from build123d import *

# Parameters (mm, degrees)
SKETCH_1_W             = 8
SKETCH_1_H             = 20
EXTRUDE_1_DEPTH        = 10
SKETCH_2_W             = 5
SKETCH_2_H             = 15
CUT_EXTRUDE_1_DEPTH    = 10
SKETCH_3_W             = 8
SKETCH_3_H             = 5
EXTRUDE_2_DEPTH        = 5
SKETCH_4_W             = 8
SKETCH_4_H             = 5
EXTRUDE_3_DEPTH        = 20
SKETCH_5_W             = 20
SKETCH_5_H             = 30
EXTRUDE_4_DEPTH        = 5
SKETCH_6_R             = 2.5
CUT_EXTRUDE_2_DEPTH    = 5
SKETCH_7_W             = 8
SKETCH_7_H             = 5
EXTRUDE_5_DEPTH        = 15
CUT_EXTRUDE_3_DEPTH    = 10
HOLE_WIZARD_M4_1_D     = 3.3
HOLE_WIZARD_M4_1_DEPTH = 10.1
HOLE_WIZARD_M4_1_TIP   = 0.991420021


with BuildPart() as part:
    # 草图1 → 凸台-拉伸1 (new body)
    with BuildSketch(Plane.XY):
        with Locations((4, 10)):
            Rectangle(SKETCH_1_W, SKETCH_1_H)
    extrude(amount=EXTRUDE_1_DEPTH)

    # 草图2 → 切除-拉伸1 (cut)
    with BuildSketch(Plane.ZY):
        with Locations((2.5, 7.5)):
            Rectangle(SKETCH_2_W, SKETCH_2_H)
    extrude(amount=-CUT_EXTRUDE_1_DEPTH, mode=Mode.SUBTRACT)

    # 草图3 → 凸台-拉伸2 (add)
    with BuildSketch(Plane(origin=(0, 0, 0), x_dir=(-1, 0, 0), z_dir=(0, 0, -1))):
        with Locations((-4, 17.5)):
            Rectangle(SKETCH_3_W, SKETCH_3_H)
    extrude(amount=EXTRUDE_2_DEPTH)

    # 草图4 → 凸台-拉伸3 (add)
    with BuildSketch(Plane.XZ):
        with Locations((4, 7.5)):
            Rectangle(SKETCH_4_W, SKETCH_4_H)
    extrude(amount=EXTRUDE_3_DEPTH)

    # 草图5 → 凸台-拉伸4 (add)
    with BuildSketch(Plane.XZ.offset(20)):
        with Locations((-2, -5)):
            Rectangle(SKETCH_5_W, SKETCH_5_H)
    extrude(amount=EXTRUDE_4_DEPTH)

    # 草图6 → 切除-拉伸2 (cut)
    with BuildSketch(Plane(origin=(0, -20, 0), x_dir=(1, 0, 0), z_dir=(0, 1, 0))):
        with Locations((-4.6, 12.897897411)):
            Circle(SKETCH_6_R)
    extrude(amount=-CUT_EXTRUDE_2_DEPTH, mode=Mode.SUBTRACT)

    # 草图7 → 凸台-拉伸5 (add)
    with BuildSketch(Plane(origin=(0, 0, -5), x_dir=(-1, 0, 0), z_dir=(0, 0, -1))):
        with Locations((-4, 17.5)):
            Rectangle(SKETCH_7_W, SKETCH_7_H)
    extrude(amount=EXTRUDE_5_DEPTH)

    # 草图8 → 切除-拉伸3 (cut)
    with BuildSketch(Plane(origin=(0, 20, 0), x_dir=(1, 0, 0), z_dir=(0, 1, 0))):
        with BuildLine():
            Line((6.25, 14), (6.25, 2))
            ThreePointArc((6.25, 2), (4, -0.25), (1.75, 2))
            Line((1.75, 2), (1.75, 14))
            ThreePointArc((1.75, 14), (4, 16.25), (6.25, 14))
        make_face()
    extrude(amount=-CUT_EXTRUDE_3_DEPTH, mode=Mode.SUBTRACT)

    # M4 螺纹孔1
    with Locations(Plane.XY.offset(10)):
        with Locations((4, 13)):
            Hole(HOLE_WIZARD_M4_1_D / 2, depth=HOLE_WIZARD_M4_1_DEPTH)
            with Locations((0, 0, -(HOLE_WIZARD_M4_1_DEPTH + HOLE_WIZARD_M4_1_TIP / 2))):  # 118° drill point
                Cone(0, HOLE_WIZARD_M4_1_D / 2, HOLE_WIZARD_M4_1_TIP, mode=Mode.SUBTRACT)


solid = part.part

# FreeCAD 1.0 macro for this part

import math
import FreeCAD as App
import Part
import Sketcher

V = App.Vector
Q = App.Units.Quantity


def add_polygon(sketch, points):
    """Adds a closed chain of lines whose ends are joined by coincident constraints."""
    first, n = sketch.GeometryCount, len(points)
    for a, b in zip(points, points[1:] + points[:1]):
        sketch.addGeometry(Part.LineSegment(App.Vector(*a, 0), App.Vector(*b, 0)), False)
    for i in range(n):
        sketch.addConstraint(Sketcher.Constraint("Coincident", first + i, 2, first + (i + 1) % n, 1))

doc = App.newDocument("Part")
params = doc.addObject("Spreadsheet::Sheet", "Params")
for row, (alias, value) in enumerate([
    ("sketch1_width", "8 mm"),
    ("sketch1_height", "20 mm"),
    ("pad1_length", "10 mm"),
    ("sketch2_width", "15 mm"),
    ("sketch2_height", "5 mm"),
    ("pocket1_length", "10 mm"),
    ("sketch3_width", "8 mm"),
    ("sketch3_height", "5 mm"),
    ("pad2_length", "5 mm"),
    ("sketch4_width", "8 mm"),
    ("sketch4_height", "5 mm"),
    ("pad3_length", "20 mm"),
    ("sketch5_width", "20 mm"),
    ("sketch5_height", "30 mm"),
    ("pad4_length", "5 mm"),
    ("sketch6_diameter", "5 mm"),
    ("pocket2_length", "5 mm"),
    ("sketch7_width", "8 mm"),
    ("sketch7_height", "5 mm"),
    ("pad5_length", "15 mm"),
    ("sketch8_height", "12 mm"),
    ("sketch8_radius", "2.25 mm"),
    ("pocket3_length", "10 mm"),
    ("sketch9_diameter", "3.3 mm"),
    ("hole_diameter", "3.3 mm"),
    ("hole_depth", "10.1 mm"),
], start=1):
    params.set(f"A{row}", alias)
    params.set(f"B{row}", "=" + value)
    params.setAlias(f"B{row}", alias)

body = doc.addObject("PartDesign::Body", "Body")

# Sketch on XY plane
sketch1 = doc.addObject("Sketcher::SketchObject", "Sketch")
body.addObject(sketch1)
sketch1.AttachmentSupport = (doc.XY_Plane, [""])
sketch1.MapMode = "FlatFace"
add_polygon(sketch1, [(0, 20), (0, 0), (8, 0), (8, 20)])  # lines 0-3
sketch1.addConstraint([
    Sketcher.Constraint("Vertical", 0),
    Sketcher.Constraint("Horizontal", 1),
    Sketcher.Constraint("Vertical", 2),
    Sketcher.Constraint("Horizontal", 3),
    Sketcher.Constraint("Coincident", 0, 2, -1, 1),
    Sketcher.Constraint("DistanceX", 1, 1, 1, 2, Q("8 mm")),
    Sketcher.Constraint("DistanceY", 0, 2, 0, 1, Q("20 mm")),
])
sketch1.setExpression("Constraints[9]", "Params.sketch1_width")
sketch1.setExpression("Constraints[10]", "Params.sketch1_height")
pad1 = doc.addObject("PartDesign::Pad", "Pad")
body.addObject(pad1)
pad1.Profile = sketch1
pad1.setExpression("Length", "Params.pad1_length")

# Sketch on YZ plane
sketch2 = doc.addObject("Sketcher::SketchObject", "Sketch001")
body.addObject(sketch2)
sketch2.AttachmentSupport = (doc.YZ_Plane, [""])
sketch2.MapMode = "FlatFace"
add_polygon(sketch2, [(15, 0), (0, 0), (0, 5), (15, 5)])  # lines 0-3
sketch2.addConstraint([
    Sketcher.Constraint("Horizontal", 0),
    Sketcher.Constraint("Vertical", 1),
    Sketcher.Constraint("Horizontal", 2),
    Sketcher.Constraint("Vertical", 3),
    Sketcher.Constraint("Coincident", 0, 2, -1, 1),
    Sketcher.Constraint("DistanceX", 0, 2, 0, 1, Q("15 mm")),
    Sketcher.Constraint("DistanceY", 1, 1, 1, 2, Q("5 mm")),
])
sketch2.setExpression("Constraints[9]", "Params.sketch2_width")
sketch2.setExpression("Constraints[10]", "Params.sketch2_height")
pocket1 = doc.addObject("PartDesign::Pocket", "Pocket")
body.addObject(pocket1)
pocket1.Profile = sketch2
pocket1.setExpression("Length", "Params.pocket1_length")
pocket1.Reversed = True

# Sketch on XY plane
sketch3 = doc.addObject("Sketcher::SketchObject", "Sketch002")
body.addObject(sketch3)
sketch3.AttachmentSupport = (doc.XY_Plane, [""])
sketch3.MapMode = "FlatFace"
add_polygon(sketch3, [(8, 20), (8, 15), (0, 15), (0, 20)])  # lines 0-3
sketch3.addConstraint([
    Sketcher.Constraint("Vertical", 0),
    Sketcher.Constraint("Horizontal", 1),
    Sketcher.Constraint("Vertical", 2),
    Sketcher.Constraint("Horizontal", 3),
    Sketcher.Constraint("PointOnObject", 1, 2, -2),
    Sketcher.Constraint("DistanceX", 1, 2, 1, 1, Q("8 mm")),
    Sketcher.Constraint("DistanceY", 0, 2, 0, 1, Q("5 mm")),
    Sketcher.Constraint("DistanceY", -1, 1, 0, 2, Q("15 mm")),
])
sketch3.setExpression("Constraints[9]", "Params.sketch3_width")
sketch3.setExpression("Constraints[10]", "Params.sketch3_height")
pad2 = doc.addObject("PartDesign::Pad", "Pad001")
body.addObject(pad2)
pad2.Profile = sketch3
pad2.setExpression("Length", "Params.pad2_length")
pad2.Reversed = True

# Sketch on XZ plane
sketch4 = doc.addObject("Sketcher::SketchObject", "Sketch003")
body.addObject(sketch4)
sketch4.AttachmentSupport = (doc.XZ_Plane, [""])
sketch4.MapMode = "FlatFace"
add_polygon(sketch4, [(0, 10), (0, 5), (8, 5), (8, 10)])  # lines 0-3
sketch4.addConstraint([
    Sketcher.Constraint("Vertical", 0),
    Sketcher.Constraint("Horizontal", 1),
    Sketcher.Constraint("Vertical", 2),
    Sketcher.Constraint("Horizontal", 3),
    Sketcher.Constraint("PointOnObject", 0, 2, -2),
    Sketcher.Constraint("DistanceX", 1, 1, 1, 2, Q("8 mm")),
    Sketcher.Constraint("DistanceY", 0, 2, 0, 1, Q("5 mm")),
    Sketcher.Constraint("DistanceY", -1, 1, 0, 2, Q("5 mm")),
])
sketch4.setExpression("Constraints[9]", "Params.sketch4_width")
sketch4.setExpression("Constraints[10]", "Params.sketch4_height")
pad3 = doc.addObject("PartDesign::Pad", "Pad002")
body.addObject(pad3)
pad3.Profile = sketch4
pad3.setExpression("Length", "Params.pad3_length")

# Sketch on XZ plane
sketch5 = doc.addObject("Sketcher::SketchObject", "Sketch004")
body.addObject(sketch5)
sketch5.AttachmentSupport = (doc.XZ_Plane, [""])
sketch5.MapMode = "FlatFace"
sketch5.AttachmentOffset = App.Placement(V(0, 0, 20), App.Rotation())
add_polygon(sketch5, [(-12, 10), (-12, -20), (8, -20), (8, 10)])  # lines 0-3
sketch5.addConstraint([
    Sketcher.Constraint("Vertical", 0),
    Sketcher.Constraint("Horizontal", 1),
    Sketcher.Constraint("Vertical", 2),
    Sketcher.Constraint("Horizontal", 3),
    Sketcher.Constraint("DistanceX", 1, 1, 1, 2, Q("20 mm")),
    Sketcher.Constraint("DistanceY", 0, 2, 0, 1, Q("30 mm")),
    Sketcher.Constraint("DistanceX", 0, 2, -1, 1, Q("12 mm")),
    Sketcher.Constraint("DistanceY", 0, 2, -1, 1, Q("20 mm")),
])
sketch5.setExpression("Constraints[8]", "Params.sketch5_width")
sketch5.setExpression("Constraints[9]", "Params.sketch5_height")
pad4 = doc.addObject("PartDesign::Pad", "Pad003")
body.addObject(pad4)
pad4.Profile = sketch5
pad4.setExpression("Length", "Params.pad4_length")

# Sketch on XZ plane
sketch6 = doc.addObject("Sketcher::SketchObject", "Sketch005")
body.addObject(sketch6)
sketch6.AttachmentSupport = (doc.XZ_Plane, [""])
sketch6.MapMode = "FlatFace"
sketch6.AttachmentOffset = App.Placement(V(0, 0, 20), App.Rotation())
sketch6.addGeometry(Part.Circle(V(-4.6, -12.9, 0), V(0, 0, 1), 2.5), False)
sketch6.addConstraint([
    Sketcher.Constraint("Diameter", 0, Q("5 mm")),
    Sketcher.Constraint("DistanceX", 0, 3, -1, 1, Q("4.6 mm")),
    Sketcher.Constraint("DistanceY", 0, 3, -1, 1, Q("12.897897 mm")),
])
sketch6.setExpression("Constraints[0]", "Params.sketch6_diameter")
pocket2 = doc.addObject("PartDesign::Pocket", "Pocket001")
body.addObject(pocket2)
pocket2.Profile = sketch6
pocket2.setExpression("Length", "Params.pocket2_length")
pocket2.Reversed = True

# Sketch on XY plane
sketch7 = doc.addObject("Sketcher::SketchObject", "Sketch006")
body.addObject(sketch7)
sketch7.AttachmentSupport = (doc.XY_Plane, [""])
sketch7.MapMode = "FlatFace"
sketch7.AttachmentOffset = App.Placement(V(0, 0, -5), App.Rotation())
add_polygon(sketch7, [(8, 20), (8, 15), (0, 15), (0, 20)])  # lines 0-3
sketch7.addConstraint([
    Sketcher.Constraint("Vertical", 0),
    Sketcher.Constraint("Horizontal", 1),
    Sketcher.Constraint("Vertical", 2),
    Sketcher.Constraint("Horizontal", 3),
    Sketcher.Constraint("PointOnObject", 1, 2, -2),
    Sketcher.Constraint("DistanceX", 1, 2, 1, 1, Q("8 mm")),
    Sketcher.Constraint("DistanceY", 0, 2, 0, 1, Q("5 mm")),
    Sketcher.Constraint("DistanceY", -1, 1, 0, 2, Q("15 mm")),
])
sketch7.setExpression("Constraints[9]", "Params.sketch7_width")
sketch7.setExpression("Constraints[10]", "Params.sketch7_height")
pad5 = doc.addObject("PartDesign::Pad", "Pad004")
body.addObject(pad5)
pad5.Profile = sketch7
pad5.setExpression("Length", "Params.pad5_length")
pad5.Reversed = True

# Sketch on XZ plane
sketch8 = doc.addObject("Sketcher::SketchObject", "Sketch007")
body.addObject(sketch8)
sketch8.AttachmentSupport = (doc.XZ_Plane, [""])
sketch8.MapMode = "FlatFace"
sketch8.AttachmentOffset = App.Placement(V(0, 0, -20), App.Rotation())
sketch8.addGeometry([
    Part.LineSegment(V(6.2, -2, 0), V(6.2, -14, 0)),
    Part.ArcOfCircle(Part.Circle(V(4, -14, 0), V(0, 0, 1), 2.2), math.radians(180), math.radians(360)),
    Part.LineSegment(V(1.8, -14, 0), V(1.8, -2, 0)),
    Part.ArcOfCircle(Part.Circle(V(4, -2, 0), V(0, 0, 1), 2.2), math.radians(0), math.radians(180)),
], False)
sketch8.addConstraint([
    Sketcher.Constraint("Tangent", 0, 2, 1, 2),
    Sketcher.Constraint("Tangent", 1, 1, 2, 1),
    Sketcher.Constraint("Tangent", 2, 2, 3, 2),
    Sketcher.Constraint("Tangent", 3, 1, 0, 1),
    Sketcher.Constraint("Vertical", 0),
    Sketcher.Constraint("Vertical", 2),
    Sketcher.Constraint("DistanceY", 0, 2, 0, 1, Q("12 mm")),
    Sketcher.Constraint("Radius", 1, Q("2.25 mm")),
    Sketcher.Constraint("DistanceX", -1, 1, 1, 3, Q("4 mm")),
    Sketcher.Constraint("DistanceY", 1, 3, -1, 1, Q("14 mm")),
])
sketch8.setExpression("Constraints[6]", "Params.sketch8_height")
sketch8.setExpression("Constraints[7]", "Params.sketch8_radius")
pocket3 = doc.addObject("PartDesign::Pocket", "Pocket002")
body.addObject(pocket3)
pocket3.Profile = sketch8
pocket3.setExpression("Length", "Params.pocket3_length")
pocket3.Reversed = True

# Sketch on XY plane
sketch9 = doc.addObject("Sketcher::SketchObject", "Sketch008")
body.addObject(sketch9)
sketch9.AttachmentSupport = (doc.XY_Plane, [""])
sketch9.MapMode = "FlatFace"
sketch9.AttachmentOffset = App.Placement(V(0, 0, 10), App.Rotation())
sketch9.addGeometry(Part.Circle(V(4, 13, 0), V(0, 0, 1), 1.6), False)
sketch9.addConstraint([
    Sketcher.Constraint("Diameter", 0, Q("3.3 mm")),
    Sketcher.Constraint("DistanceX", -1, 1, 0, 3, Q("4 mm")),
    Sketcher.Constraint("DistanceY", -1, 1, 0, 3, Q("13 mm")),
])
sketch9.setExpression("Constraints[0]", "Params.sketch9_diameter")
doc.recompute()
hole = doc.addObject("PartDesign::Hole", "Hole")
body.addObject(hole)
hole.Profile = sketch9
hole.ThreadType = "None"
hole.setExpression("Diameter", "Params.hole_diameter")
hole.DepthType = "Dimension"
hole.setExpression("Depth", "Params.hole_depth")
hole.DrillPoint = "Angled"
hole.DrillPointAngle = 118

doc.recompute()
